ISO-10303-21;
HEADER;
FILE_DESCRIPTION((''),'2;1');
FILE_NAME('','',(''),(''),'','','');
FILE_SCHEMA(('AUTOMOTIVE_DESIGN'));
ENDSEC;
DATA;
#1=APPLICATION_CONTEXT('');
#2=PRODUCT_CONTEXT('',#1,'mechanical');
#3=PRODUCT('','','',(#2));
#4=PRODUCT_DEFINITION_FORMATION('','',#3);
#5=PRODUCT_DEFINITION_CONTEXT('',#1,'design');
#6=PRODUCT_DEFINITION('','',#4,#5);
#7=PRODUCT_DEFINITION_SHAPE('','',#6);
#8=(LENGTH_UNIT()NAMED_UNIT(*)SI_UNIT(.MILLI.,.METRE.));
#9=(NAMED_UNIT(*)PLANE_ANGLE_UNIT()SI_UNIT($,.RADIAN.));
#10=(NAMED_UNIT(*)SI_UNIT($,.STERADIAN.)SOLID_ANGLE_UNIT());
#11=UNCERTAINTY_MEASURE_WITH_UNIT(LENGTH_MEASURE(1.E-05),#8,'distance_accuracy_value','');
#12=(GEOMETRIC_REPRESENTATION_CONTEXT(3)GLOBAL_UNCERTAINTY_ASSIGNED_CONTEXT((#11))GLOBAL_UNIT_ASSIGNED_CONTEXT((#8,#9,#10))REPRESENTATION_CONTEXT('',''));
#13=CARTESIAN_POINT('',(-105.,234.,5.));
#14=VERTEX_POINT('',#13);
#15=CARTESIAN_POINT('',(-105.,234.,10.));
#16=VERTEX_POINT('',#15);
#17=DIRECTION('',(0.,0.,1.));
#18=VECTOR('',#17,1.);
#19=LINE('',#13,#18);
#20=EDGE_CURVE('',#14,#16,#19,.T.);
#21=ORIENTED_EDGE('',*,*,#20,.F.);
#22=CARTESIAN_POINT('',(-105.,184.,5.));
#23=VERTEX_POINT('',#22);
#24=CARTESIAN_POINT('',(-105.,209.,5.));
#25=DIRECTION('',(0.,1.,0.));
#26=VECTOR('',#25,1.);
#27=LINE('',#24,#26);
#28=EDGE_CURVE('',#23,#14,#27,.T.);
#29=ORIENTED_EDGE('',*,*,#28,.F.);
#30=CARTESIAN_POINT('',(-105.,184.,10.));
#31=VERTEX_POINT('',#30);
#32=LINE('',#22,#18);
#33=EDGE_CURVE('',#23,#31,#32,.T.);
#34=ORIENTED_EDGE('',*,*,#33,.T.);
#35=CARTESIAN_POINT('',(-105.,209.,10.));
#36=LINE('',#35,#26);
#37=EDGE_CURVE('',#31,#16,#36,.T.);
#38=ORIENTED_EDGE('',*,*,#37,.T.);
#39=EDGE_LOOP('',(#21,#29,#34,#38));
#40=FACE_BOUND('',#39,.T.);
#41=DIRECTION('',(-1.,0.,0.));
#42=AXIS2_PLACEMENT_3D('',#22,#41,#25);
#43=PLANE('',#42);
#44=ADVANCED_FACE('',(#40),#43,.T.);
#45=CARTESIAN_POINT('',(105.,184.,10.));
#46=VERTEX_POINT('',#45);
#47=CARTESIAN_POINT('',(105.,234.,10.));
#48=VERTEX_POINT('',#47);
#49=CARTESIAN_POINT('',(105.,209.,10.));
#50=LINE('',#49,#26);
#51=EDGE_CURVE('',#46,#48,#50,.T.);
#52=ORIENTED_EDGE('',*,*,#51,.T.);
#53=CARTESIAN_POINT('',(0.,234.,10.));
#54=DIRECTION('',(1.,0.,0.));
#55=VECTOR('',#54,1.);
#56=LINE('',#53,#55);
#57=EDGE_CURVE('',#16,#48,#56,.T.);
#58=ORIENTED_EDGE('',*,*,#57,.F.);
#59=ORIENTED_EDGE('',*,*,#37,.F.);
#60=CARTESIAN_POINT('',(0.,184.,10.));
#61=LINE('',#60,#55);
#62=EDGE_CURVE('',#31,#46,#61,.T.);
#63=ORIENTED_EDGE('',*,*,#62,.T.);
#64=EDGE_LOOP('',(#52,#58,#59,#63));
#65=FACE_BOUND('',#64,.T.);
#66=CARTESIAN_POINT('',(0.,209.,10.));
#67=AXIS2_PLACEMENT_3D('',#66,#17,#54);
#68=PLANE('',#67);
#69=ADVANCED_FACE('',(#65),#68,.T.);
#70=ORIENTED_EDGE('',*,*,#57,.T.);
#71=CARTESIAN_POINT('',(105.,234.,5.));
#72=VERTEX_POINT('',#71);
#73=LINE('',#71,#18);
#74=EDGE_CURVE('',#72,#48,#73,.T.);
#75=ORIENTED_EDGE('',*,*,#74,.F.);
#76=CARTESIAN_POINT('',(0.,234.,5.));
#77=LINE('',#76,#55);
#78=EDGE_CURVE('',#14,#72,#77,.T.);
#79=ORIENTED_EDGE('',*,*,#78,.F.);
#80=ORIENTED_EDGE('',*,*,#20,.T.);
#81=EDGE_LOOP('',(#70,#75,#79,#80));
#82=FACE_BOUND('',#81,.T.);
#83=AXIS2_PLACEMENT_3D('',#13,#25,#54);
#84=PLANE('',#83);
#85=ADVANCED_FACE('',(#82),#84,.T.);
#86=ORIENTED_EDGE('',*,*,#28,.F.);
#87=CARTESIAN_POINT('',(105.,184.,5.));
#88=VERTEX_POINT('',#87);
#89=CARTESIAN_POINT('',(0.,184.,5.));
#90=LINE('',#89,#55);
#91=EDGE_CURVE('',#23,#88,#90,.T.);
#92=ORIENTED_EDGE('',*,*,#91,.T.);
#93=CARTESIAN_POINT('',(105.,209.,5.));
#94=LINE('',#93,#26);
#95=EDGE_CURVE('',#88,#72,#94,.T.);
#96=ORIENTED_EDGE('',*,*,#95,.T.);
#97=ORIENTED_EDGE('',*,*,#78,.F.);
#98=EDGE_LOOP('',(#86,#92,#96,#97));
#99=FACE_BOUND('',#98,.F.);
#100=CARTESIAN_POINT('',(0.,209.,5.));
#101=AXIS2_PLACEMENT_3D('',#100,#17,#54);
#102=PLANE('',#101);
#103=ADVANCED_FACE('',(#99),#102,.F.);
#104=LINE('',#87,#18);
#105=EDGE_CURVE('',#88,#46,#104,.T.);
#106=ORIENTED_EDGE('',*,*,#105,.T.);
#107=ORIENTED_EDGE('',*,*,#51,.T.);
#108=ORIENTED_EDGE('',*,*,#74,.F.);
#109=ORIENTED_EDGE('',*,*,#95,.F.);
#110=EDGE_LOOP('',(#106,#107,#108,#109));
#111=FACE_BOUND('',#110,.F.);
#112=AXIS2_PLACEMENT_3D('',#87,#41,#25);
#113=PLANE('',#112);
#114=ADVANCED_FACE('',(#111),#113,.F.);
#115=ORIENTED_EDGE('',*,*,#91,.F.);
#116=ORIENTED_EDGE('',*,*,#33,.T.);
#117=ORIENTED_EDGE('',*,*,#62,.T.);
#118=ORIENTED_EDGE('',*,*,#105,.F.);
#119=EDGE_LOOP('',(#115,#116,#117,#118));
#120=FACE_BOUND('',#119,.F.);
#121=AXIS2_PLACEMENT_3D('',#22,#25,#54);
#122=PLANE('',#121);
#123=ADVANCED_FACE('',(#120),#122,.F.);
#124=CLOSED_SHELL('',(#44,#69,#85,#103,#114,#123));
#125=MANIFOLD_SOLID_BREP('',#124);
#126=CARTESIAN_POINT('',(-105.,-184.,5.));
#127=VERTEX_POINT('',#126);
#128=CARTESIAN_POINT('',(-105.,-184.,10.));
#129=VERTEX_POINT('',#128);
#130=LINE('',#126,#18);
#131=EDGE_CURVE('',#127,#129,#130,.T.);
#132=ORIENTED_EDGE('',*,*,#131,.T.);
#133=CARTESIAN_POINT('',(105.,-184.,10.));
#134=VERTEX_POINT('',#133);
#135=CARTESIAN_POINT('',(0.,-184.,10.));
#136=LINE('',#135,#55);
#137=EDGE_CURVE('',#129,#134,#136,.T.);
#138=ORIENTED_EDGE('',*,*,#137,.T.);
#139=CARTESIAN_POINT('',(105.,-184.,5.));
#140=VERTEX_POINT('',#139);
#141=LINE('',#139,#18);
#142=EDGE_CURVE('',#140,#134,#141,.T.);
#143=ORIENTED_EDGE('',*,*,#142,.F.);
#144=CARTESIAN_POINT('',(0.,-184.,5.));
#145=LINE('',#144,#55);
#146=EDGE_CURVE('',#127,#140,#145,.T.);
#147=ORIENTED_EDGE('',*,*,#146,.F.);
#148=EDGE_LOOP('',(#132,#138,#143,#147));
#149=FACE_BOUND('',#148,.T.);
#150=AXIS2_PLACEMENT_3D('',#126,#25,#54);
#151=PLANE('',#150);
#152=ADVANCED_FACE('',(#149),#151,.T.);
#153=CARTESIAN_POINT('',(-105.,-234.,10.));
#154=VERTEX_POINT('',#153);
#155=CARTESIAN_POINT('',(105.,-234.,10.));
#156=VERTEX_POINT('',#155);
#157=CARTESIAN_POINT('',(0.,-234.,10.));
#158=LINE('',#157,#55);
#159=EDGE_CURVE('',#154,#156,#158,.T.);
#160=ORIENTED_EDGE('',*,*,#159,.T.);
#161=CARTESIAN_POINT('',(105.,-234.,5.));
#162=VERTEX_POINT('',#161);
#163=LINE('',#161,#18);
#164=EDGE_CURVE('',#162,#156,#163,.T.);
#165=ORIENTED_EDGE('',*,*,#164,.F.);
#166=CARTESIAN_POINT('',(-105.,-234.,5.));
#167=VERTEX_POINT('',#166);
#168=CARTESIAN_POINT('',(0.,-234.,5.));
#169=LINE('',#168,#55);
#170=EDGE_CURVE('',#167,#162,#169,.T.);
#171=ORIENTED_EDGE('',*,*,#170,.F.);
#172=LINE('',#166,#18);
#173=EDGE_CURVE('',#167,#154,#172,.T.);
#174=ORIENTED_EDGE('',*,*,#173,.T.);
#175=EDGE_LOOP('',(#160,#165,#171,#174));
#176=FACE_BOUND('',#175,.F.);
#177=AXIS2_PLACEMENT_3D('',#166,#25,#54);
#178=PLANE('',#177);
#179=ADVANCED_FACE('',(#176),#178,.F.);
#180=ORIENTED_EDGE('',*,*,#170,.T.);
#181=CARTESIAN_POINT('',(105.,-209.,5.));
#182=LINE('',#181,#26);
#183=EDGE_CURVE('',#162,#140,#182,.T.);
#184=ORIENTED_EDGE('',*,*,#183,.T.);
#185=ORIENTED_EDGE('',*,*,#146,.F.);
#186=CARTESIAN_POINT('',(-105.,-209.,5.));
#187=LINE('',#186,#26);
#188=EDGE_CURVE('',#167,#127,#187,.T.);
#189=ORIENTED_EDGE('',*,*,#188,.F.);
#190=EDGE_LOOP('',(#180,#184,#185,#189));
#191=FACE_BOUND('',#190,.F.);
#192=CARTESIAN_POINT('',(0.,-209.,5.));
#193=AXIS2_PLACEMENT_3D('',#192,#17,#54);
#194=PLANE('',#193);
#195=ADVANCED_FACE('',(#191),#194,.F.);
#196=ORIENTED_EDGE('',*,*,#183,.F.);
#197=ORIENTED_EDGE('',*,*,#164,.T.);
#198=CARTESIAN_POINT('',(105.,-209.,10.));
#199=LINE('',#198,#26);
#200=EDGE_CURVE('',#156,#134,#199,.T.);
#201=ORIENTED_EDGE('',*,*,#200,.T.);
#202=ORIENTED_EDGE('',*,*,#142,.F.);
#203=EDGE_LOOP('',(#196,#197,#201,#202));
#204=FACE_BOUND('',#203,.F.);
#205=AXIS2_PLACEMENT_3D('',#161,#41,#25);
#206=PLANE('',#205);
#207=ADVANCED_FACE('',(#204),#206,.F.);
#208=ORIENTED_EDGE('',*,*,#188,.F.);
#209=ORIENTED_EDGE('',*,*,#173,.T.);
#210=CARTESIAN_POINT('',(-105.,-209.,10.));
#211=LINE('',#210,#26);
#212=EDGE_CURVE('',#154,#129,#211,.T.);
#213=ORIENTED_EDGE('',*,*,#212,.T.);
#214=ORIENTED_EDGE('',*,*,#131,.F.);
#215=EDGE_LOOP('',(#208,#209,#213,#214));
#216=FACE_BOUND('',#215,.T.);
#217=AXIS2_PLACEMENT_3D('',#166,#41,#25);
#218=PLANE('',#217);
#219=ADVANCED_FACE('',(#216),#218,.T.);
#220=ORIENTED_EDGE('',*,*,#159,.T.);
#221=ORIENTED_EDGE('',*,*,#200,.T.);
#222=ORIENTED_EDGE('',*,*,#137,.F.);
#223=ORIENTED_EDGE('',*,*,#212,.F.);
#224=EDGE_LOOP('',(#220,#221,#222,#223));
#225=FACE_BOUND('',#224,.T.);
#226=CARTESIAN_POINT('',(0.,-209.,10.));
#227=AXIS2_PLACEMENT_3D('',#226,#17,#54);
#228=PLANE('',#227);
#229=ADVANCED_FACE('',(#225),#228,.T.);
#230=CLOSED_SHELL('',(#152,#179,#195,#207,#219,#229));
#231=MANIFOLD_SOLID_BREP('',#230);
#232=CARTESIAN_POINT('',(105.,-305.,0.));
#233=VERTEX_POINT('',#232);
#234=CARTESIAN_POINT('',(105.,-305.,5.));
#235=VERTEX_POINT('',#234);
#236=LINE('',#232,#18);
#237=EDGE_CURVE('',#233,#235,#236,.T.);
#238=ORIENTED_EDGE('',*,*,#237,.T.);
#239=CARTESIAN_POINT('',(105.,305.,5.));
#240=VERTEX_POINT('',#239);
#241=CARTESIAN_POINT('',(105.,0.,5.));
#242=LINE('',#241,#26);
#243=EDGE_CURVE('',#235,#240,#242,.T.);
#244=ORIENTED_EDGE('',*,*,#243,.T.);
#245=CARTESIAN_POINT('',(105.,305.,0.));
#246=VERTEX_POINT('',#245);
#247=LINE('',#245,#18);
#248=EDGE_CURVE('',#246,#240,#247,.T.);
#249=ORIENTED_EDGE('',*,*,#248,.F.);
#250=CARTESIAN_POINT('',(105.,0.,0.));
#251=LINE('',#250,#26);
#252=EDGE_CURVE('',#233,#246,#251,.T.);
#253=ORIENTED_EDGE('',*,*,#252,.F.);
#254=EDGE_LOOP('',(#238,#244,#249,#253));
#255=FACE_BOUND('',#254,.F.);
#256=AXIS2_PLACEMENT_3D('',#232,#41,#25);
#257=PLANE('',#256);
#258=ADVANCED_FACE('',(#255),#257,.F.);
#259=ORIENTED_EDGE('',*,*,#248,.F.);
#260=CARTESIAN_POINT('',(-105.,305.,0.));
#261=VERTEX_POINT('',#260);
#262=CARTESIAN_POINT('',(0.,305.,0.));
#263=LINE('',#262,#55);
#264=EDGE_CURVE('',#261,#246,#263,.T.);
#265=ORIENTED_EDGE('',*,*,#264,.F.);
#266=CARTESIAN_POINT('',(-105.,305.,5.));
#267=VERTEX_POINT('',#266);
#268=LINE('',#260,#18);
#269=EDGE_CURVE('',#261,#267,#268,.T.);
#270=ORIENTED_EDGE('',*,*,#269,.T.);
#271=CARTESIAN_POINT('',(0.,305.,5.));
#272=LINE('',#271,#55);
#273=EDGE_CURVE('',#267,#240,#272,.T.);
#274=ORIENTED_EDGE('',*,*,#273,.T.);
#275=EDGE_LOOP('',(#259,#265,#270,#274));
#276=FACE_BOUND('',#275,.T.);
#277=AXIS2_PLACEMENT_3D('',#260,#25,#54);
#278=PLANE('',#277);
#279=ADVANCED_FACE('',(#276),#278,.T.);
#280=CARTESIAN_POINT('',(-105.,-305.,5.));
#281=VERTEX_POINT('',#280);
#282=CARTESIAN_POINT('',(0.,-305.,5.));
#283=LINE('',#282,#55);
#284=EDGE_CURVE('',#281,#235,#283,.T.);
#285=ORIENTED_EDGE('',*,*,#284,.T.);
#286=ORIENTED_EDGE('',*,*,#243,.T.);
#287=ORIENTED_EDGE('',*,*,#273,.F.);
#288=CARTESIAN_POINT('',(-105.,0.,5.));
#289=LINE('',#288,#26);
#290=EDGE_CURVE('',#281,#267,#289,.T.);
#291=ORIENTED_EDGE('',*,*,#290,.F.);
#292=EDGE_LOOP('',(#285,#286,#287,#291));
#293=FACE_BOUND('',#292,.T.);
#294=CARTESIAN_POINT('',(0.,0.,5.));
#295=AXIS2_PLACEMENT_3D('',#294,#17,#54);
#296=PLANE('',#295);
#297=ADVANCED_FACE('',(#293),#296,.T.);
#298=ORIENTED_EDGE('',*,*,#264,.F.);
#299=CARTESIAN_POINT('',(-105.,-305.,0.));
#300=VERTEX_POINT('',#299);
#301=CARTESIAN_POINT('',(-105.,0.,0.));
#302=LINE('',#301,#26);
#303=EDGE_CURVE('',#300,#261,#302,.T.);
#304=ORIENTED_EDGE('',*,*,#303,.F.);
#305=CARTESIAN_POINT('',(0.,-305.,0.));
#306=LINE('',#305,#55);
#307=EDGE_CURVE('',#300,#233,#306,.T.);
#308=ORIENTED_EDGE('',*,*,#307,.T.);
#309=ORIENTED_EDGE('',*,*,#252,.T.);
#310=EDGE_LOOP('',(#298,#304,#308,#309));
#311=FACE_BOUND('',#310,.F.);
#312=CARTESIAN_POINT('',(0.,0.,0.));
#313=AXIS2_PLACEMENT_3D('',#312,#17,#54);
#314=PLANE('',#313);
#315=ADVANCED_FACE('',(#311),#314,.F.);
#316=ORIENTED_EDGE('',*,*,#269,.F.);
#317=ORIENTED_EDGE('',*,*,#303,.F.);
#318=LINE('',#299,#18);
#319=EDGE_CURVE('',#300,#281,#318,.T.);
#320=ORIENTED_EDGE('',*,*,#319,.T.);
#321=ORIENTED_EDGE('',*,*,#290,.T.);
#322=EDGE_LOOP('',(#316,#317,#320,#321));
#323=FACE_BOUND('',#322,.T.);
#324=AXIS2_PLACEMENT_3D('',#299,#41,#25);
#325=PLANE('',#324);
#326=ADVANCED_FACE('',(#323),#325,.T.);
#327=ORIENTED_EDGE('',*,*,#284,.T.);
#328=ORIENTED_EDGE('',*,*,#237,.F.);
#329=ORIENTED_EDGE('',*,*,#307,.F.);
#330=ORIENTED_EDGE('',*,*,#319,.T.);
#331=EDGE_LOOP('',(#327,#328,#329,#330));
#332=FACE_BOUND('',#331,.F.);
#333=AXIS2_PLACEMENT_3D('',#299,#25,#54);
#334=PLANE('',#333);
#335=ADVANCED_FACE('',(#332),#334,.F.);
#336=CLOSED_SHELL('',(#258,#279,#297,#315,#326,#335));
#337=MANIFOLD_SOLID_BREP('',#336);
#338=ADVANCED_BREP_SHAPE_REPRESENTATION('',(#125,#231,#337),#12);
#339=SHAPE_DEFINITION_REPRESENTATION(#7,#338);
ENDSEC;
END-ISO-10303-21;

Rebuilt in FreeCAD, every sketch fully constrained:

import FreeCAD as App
import Part
import Sketcher


def add_polygon(sketch, points):
    """Adds a closed chain of lines whose ends are joined by coincident constraints."""
    first, n = sketch.GeometryCount, len(points)
    for a, b in zip(points, points[1:] + points[:1]):
        sketch.addGeometry(Part.LineSegment(App.Vector(*a, 0), App.Vector(*b, 0)), False)
    for i in range(n):
        sketch.addConstraint(Sketcher.Constraint("Coincident", first + i, 2, first + (i + 1) % n, 1))

doc = App.newDocument("Part")
params = doc.addObject("Spreadsheet::Sheet", "Params")
for row, (alias, value) in enumerate([
    ("sketch1_width", "210 mm"),
    ("sketch1_height", "610 mm"),
    ("pad1_length", "5 mm"),
    ("sketch2_width", "210 mm"),
    ("sketch2_height", "50 mm"),
    ("pad2_length", "5 mm"),
    ("sketch3_width", "210 mm"),
    ("sketch3_height", "50 mm"),
    ("pad3_length", "5 mm"),
], start=1):
    params.set(f"A{row}", alias)
    params.set(f"B{row}", "=" + value)
    params.setAlias(f"B{row}", alias)

body = doc.addObject("PartDesign::Body", "Body")

# Sketch on XY plane
sketch1 = body.newObject("Sketcher::SketchObject", "Sketch")
sketch1.AttachmentSupport = (doc.getObject("XY_Plane"), [""])
sketch1.MapMode = "FlatFace"
add_polygon(sketch1, [(-105, 305), (-105, -305), (105, -305), (105, 305)])  # lines 0-3
sketch1.addConstraint(Sketcher.Constraint("Vertical", 0))
sketch1.addConstraint(Sketcher.Constraint("Horizontal", 1))
sketch1.addConstraint(Sketcher.Constraint("Vertical", 2))
sketch1.addConstraint(Sketcher.Constraint("Horizontal", 3))
sketch1.addConstraint(Sketcher.Constraint("Symmetric", 0, 2, 2, 2, -1, 1))
sketch1.addConstraint(Sketcher.Constraint("DistanceX", 1, 1, 1, 2, 210.0))
sketch1.addConstraint(Sketcher.Constraint("DistanceY", 0, 2, 0, 1, 610.0))
sketch1.setExpression("Constraints[9]", "Params.sketch1_width")
sketch1.setExpression("Constraints[10]", "Params.sketch1_height")
pad1 = body.newObject("PartDesign::Pad", "Pad")
pad1.Profile = sketch1
pad1.setExpression("Length", "Params.pad1_length")
body2 = doc.addObject("PartDesign::Body", "Body001")

# Sketch on XY plane
sketch2 = body2.newObject("Sketcher::SketchObject", "Sketch001")
sketch2.AttachmentSupport = (doc.getObject("XY_Plane001"), [""])
sketch2.MapMode = "FlatFace"
sketch2.AttachmentOffset = App.Placement(App.Vector(0, 0, 5), App.Rotation())
add_polygon(sketch2, [(-105, -184), (-105, -234), (105, -234), (105, -184)])  # lines 0-3
sketch2.addConstraint(Sketcher.Constraint("Vertical", 0))
sketch2.addConstraint(Sketcher.Constraint("Horizontal", 1))
sketch2.addConstraint(Sketcher.Constraint("Vertical", 2))
sketch2.addConstraint(Sketcher.Constraint("Horizontal", 3))
sketch2.addConstraint(Sketcher.Constraint("DistanceX", 1, 1, 1, 2, 210.0))
sketch2.addConstraint(Sketcher.Constraint("DistanceY", 0, 2, 0, 1, 50.0))
sketch2.addConstraint(Sketcher.Constraint("DistanceX", 0, 2, -1, 1, 105.0))
sketch2.addConstraint(Sketcher.Constraint("DistanceY", 0, 2, -1, 1, 234.0))
sketch2.setExpression("Constraints[8]", "Params.sketch2_width")
sketch2.setExpression("Constraints[9]", "Params.sketch2_height")
pad2 = body2.newObject("PartDesign::Pad", "Pad001")
pad2.Profile = sketch2
pad2.setExpression("Length", "Params.pad2_length")
body3 = doc.addObject("PartDesign::Body", "Body002")

# Sketch on XY plane
sketch3 = body3.newObject("Sketcher::SketchObject", "Sketch002")
sketch3.AttachmentSupport = (doc.getObject("XY_Plane002"), [""])
sketch3.MapMode = "FlatFace"
sketch3.AttachmentOffset = App.Placement(App.Vector(0, 0, 5), App.Rotation())
add_polygon(sketch3, [(-105, 234), (-105, 184), (105, 184), (105, 234)])  # lines 0-3
sketch3.addConstraint(Sketcher.Constraint("Vertical", 0))
sketch3.addConstraint(Sketcher.Constraint("Horizontal", 1))
sketch3.addConstraint(Sketcher.Constraint("Vertical", 2))
sketch3.addConstraint(Sketcher.Constraint("Horizontal", 3))
sketch3.addConstraint(Sketcher.Constraint("DistanceX", 1, 1, 1, 2, 210.0))
sketch3.addConstraint(Sketcher.Constraint("DistanceY", 0, 2, 0, 1, 50.0))
sketch3.addConstraint(Sketcher.Constraint("DistanceX", 0, 2, -1, 1, 105.0))
sketch3.addConstraint(Sketcher.Constraint("DistanceY", -1, 1, 0, 2, 184.0))
sketch3.setExpression("Constraints[8]", "Params.sketch3_width")
sketch3.setExpression("Constraints[9]", "Params.sketch3_height")
pad3 = body3.newObject("PartDesign::Pad", "Pad002")
pad3.Profile = sketch3
pad3.setExpression("Length", "Params.pad3_length")

doc.recompute()
